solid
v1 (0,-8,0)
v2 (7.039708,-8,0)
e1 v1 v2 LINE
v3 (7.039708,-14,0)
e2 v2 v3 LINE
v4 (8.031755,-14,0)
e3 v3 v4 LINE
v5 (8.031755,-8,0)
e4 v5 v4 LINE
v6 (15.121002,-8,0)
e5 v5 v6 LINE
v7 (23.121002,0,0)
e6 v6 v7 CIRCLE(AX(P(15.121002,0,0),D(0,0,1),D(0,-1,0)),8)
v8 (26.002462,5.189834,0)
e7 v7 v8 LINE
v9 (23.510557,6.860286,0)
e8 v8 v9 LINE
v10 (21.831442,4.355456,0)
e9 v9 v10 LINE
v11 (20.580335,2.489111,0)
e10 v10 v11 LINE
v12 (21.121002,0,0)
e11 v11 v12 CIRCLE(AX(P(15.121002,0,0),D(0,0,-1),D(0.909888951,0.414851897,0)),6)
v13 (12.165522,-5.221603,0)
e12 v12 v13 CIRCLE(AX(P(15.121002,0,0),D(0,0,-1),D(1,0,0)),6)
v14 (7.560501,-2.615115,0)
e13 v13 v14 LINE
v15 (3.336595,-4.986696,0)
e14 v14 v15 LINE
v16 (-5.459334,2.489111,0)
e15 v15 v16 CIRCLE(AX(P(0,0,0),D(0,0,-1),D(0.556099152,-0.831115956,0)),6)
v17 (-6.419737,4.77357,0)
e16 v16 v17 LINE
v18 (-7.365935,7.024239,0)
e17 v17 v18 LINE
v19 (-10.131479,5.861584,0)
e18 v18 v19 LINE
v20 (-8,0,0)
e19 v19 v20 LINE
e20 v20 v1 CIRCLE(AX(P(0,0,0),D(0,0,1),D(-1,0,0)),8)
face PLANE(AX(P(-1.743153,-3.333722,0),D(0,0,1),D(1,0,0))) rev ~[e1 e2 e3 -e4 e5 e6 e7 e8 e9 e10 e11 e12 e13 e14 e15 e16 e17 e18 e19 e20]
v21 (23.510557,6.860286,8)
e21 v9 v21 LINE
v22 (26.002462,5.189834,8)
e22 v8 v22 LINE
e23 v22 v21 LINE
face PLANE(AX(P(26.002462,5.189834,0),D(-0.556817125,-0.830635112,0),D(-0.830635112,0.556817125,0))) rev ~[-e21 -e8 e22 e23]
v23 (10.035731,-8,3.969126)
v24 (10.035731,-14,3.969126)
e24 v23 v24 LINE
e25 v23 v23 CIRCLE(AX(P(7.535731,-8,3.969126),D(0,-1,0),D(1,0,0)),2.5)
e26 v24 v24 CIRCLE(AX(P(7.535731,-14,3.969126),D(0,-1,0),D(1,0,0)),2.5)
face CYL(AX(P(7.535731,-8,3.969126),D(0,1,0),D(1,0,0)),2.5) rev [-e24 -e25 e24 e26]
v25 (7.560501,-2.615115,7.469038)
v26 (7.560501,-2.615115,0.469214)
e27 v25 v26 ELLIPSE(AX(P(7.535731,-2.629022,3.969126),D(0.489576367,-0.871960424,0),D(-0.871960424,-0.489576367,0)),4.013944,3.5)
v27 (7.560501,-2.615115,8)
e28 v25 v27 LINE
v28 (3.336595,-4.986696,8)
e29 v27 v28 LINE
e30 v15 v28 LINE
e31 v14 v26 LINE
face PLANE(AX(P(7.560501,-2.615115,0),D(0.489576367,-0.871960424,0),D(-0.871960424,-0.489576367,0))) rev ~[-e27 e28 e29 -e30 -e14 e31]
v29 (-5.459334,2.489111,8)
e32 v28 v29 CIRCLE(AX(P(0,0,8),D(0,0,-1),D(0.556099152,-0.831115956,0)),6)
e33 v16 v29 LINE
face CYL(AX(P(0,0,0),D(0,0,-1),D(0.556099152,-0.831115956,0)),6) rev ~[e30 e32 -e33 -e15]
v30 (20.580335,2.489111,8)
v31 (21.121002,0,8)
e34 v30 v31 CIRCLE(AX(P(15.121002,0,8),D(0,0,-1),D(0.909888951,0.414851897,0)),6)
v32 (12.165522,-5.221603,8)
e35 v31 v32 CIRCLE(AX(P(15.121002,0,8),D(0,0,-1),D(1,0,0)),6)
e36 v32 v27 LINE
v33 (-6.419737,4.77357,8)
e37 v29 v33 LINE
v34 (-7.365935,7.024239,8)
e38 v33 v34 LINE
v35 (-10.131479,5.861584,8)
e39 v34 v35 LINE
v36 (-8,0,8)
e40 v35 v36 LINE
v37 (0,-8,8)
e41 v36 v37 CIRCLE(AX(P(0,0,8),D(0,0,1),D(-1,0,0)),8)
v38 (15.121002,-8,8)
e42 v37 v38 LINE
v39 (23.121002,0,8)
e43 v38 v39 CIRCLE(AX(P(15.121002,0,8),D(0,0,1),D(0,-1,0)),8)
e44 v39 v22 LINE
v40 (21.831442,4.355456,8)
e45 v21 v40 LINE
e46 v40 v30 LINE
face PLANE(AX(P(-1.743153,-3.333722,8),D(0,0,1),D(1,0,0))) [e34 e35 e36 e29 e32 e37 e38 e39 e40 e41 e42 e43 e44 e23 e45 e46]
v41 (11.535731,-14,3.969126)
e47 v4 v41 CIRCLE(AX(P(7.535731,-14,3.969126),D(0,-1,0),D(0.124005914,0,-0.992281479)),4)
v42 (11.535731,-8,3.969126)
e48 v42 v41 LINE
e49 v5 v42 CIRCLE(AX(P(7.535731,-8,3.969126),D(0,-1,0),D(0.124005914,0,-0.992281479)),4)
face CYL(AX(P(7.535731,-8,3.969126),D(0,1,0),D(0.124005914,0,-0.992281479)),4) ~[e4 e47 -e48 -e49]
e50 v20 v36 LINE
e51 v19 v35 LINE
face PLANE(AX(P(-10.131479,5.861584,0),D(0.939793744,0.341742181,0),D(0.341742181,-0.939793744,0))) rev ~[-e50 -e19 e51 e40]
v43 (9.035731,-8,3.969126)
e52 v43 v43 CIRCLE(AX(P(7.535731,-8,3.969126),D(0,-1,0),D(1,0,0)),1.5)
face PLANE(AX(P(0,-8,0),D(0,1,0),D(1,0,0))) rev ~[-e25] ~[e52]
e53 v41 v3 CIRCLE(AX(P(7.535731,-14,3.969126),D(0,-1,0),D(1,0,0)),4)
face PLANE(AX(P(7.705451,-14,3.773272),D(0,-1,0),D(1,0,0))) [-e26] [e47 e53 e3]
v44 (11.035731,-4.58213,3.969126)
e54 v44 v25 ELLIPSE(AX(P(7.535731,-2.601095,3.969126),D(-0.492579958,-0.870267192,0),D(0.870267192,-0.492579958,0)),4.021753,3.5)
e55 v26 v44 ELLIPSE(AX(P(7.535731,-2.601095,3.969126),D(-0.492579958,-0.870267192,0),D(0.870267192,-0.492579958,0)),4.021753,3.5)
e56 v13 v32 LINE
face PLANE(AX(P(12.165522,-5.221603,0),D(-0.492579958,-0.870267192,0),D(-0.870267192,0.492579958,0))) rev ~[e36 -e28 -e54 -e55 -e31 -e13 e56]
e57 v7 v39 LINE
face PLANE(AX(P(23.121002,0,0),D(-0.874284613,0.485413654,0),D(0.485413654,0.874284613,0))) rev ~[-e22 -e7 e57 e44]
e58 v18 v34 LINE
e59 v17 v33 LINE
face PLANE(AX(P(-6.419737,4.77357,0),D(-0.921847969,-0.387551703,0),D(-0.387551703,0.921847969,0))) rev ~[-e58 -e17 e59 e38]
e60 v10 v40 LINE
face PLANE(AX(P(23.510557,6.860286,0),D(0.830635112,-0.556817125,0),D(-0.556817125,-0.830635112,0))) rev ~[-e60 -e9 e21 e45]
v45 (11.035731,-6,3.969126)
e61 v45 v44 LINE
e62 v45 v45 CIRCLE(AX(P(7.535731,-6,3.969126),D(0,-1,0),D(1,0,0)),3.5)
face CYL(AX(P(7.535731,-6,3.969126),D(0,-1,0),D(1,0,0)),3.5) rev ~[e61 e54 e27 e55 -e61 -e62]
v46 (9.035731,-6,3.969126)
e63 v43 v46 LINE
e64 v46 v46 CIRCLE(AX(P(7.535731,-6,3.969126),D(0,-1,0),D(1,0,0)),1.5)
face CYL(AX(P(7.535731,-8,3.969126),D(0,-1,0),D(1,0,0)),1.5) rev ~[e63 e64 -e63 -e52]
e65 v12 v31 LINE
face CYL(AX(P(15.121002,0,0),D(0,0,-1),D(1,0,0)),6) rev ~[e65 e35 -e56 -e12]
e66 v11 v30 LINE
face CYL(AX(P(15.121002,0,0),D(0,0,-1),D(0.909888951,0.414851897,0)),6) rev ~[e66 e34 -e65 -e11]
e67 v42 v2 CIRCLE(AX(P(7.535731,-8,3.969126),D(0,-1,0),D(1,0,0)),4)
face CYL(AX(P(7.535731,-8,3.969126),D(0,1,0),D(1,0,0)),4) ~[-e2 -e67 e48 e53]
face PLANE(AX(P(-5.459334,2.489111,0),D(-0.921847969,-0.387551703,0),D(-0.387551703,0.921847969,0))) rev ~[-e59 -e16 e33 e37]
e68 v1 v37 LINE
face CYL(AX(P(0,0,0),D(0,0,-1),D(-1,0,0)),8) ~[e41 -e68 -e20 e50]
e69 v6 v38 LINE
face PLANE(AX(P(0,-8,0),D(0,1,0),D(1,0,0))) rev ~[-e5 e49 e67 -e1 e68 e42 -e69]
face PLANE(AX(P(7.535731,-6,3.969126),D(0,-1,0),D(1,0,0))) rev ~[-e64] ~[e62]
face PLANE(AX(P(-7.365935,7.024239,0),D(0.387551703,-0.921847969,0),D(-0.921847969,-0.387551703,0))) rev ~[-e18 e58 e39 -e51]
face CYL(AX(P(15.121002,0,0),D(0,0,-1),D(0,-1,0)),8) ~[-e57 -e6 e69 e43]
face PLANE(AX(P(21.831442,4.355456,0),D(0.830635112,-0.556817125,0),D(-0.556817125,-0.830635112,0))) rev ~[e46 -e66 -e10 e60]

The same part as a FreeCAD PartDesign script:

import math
import FreeCAD as App
import Part
import Sketcher
from FreeCAD import Vector
Q = App.Units.Quantity

doc = App.newDocument("Part")
params = doc.addObject("Spreadsheet::Sheet", "Params")
for row, (alias, value) in enumerate([
    ("sketch1_radius", "8 mm"),
    ("sketch1_radius2", "6 mm"),
    ("sketch1_length", "3 mm"),
    ("pad1_length", "8 mm"),
    ("sketch2_diameter", "3 mm"),
    ("pocket1_length", "25 mm"),
    ("sketch3_diameter", "5 mm"),
    ("sketch3_radius", "4 mm"),
    ("pad2_length", "6 mm"),
    ("sketch4_diameter", "7 mm"),
    ("pocket2_length", "23 mm"),
], start=1):
    params.set(f"A{row}", alias)
    params.set(f"B{row}", "=" + value)
    params.setAlias(f"B{row}", alias)

body = doc.addObject("PartDesign::Body", "Body")

sketch1 = doc.addObject("Sketcher::SketchObject", "Sketch")
body.addObject(sketch1)
sketch1.AttachmentSupport = (doc.XY_Plane, [""])
sketch1.MapMode = "FlatFace"
sketch1.addGeometry([
    Part.ArcOfCircle(Part.Circle(Vector(0, 0, 0), Vector(0, 0, 1), 8), math.radians(180), math.radians(270)),
    Part.LineSegment(Vector(0, -8, 0), Vector(15.1, -8, 0)),
    Part.ArcOfCircle(Part.Circle(Vector(15.1, 0, 0), Vector(0, 0, 1), 8), math.radians(-90), math.radians(0)),
    Part.LineSegment(Vector(23.1, 0, 0), Vector(26, 5.2, 0)),
    Part.LineSegment(Vector(26, 5.2, 0), Vector(23.5, 6.9, 0)),
    Part.LineSegment(Vector(23.5, 6.9, 0), Vector(21.8, 4.4, 0)),
    Part.LineSegment(Vector(21.8, 4.4, 0), Vector(20.6, 2.5, 0)),
    Part.ArcOfCircle(Part.Circle(Vector(15.1, 0, 0), Vector(0, 0, 1), 6), math.radians(0), math.radians(25)),
    Part.ArcOfCircle(Part.Circle(Vector(15.1, 0, 0), Vector(0, 0, 1), 6), math.radians(-120), math.radians(0)),
    Part.LineSegment(Vector(12.2, -5.2, 0), Vector(7.6, -2.6, 0)),
    Part.LineSegment(Vector(7.6, -2.6, 0), Vector(3.3, -5, 0)),
    Part.ArcOfCircle(Part.Circle(Vector(0, 0, 0), Vector(0, 0, 1), 6), math.radians(155), math.radians(304)),
    Part.LineSegment(Vector(-5.5, 2.5, 0), Vector(-6.4, 4.8, 0)),
    Part.LineSegment(Vector(-6.4, 4.8, 0), Vector(-7.4, 7, 0)),
    Part.LineSegment(Vector(-7.4, 7, 0), Vector(-10.1, 5.9, 0)),
    Part.LineSegment(Vector(-10.1, 5.9, 0), Vector(-8, 0, 0)),
], False)
sketch1.addConstraint([
    Sketcher.Constraint("Tangent", 0, 2, 1, 1),
    Sketcher.Constraint("Tangent", 1, 2, 2, 1),
    Sketcher.Constraint("Coincident", 2, 2, 3, 1),
    Sketcher.Constraint("Coincident", 3, 2, 4, 1),
    Sketcher.Constraint("Coincident", 4, 2, 5, 1),
    Sketcher.Constraint("Coincident", 5, 2, 6, 1),
    Sketcher.Constraint("Coincident", 6, 2, 7, 2),
    Sketcher.Constraint("Tangent", 7, 1, 8, 2),
    Sketcher.Constraint("Tangent", 8, 1, 9, 1),
    Sketcher.Constraint("Coincident", 9, 2, 10, 1),
    Sketcher.Constraint("Coincident", 10, 2, 11, 2),
    Sketcher.Constraint("Coincident", 11, 1, 12, 1),
    Sketcher.Constraint("Coincident", 12, 2, 13, 1),
    Sketcher.Constraint("Coincident", 13, 2, 14, 1),
    Sketcher.Constraint("Coincident", 14, 2, 15, 1),
    Sketcher.Constraint("Coincident", 15, 2, 0, 1),
    Sketcher.Constraint("Horizontal", 1),
    Sketcher.Constraint("Coincident", 0, 3, -1, 1),
    Sketcher.Constraint("Coincident", 11, 3, -1, 1),
    Sketcher.Constraint("Coincident", 7, 3, 2, 3),
    Sketcher.Constraint("Equal", 0, 2),
    Sketcher.Constraint("Equal", 7, 8),
    Sketcher.Constraint("Equal", 8, 11),
    Sketcher.Constraint("PointOnObject", 2, 2, -1),
    Sketcher.Constraint("PointOnObject", 7, 1, -1),
    Sketcher.Constraint("PointOnObject", 15, 2, -1),
    Sketcher.Constraint("Perpendicular", 4, 5),
    Sketcher.Constraint("Parallel", 5, 6),
    Sketcher.Constraint("Parallel", 12, 13),
    Sketcher.Constraint("Perpendicular", 13, 14),
    Sketcher.Constraint("Horizontal", 6, 2, 11, 1),
    Sketcher.Constraint("Equal", 4, 14),
    Sketcher.Constraint("Radius", 0, Q("8 mm")),
    Sketcher.Constraint("Radius", 7, Q("6 mm")),
    Sketcher.Constraint("Distance", 4, Q("3 mm")),
    Sketcher.Constraint("DistanceX", 1, 1, 1, 2, Q("15.121002 mm")),
    Sketcher.Constraint("DistanceX", -1, 1, 9, 2, Q("7.560501 mm")),
    Sketcher.Constraint("DistanceX", 13, 2, 11, 1, Q("1.906601 mm")),
    Sketcher.Constraint("Distance", 5, Q("3.015559 mm")),
    Sketcher.Constraint("Distance", 6, Q("2.246889 mm")),
    Sketcher.Constraint("Distance", 10, Q("4.844149 mm")),
    Sketcher.Constraint("Distance", 12, Q("2.47813 mm")),
    Sketcher.Constraint("DistanceX", -1, 1, 5, 2, Q("21.831442 mm")),
    Sketcher.Constraint("DistanceY", -1, 1, 6, 2, Q("2.489111 mm")),
    Sketcher.Constraint("DistanceY", -1, 1, 12, 2, Q("4.77357 mm")),
    Sketcher.Constraint("DistanceX", 8, 1, 1, 2, Q("2.95548 mm")),
])
sketch1.setExpression("Constraints[32]", "Params.sketch1_radius")
sketch1.setExpression("Constraints[33]", "Params.sketch1_radius2")
sketch1.setExpression("Constraints[34]", "Params.sketch1_length")
pad1 = doc.addObject("PartDesign::Pad", "Pad")
body.addObject(pad1)
pad1.Profile = sketch1
pad1.setExpression("Length", "Params.pad1_length")

sketch2 = doc.addObject("Sketcher::SketchObject", "Sketch001")
body.addObject(sketch2)
sketch2.AttachmentSupport = (doc.XZ_Plane, [""])
sketch2.MapMode = "FlatFace"
sketch2.AttachmentOffset = App.Placement(Vector(0, 0, 8), App.Rotation())
sketch2.addGeometry(Part.Circle(Vector(7.5, 4, 0), Vector(0, 0, 1), 1.5), False)
sketch2.addConstraint([
    Sketcher.Constraint("Diameter", 0, Q("3 mm")),
    Sketcher.Constraint("DistanceX", -1, 1, 0, 3, Q("7.535731 mm")),
    Sketcher.Constraint("DistanceY", -1, 1, 0, 3, Q("3.969126 mm")),
])
sketch2.setExpression("Constraints[0]", "Params.sketch2_diameter")
pocket1 = doc.addObject("PartDesign::Pocket", "Pocket")
body.addObject(pocket1)
pocket1.Profile = sketch2
pocket1.setExpression("Length", "Params.pocket1_length")

sketch3 = doc.addObject("Sketcher::SketchObject", "Sketch002")
body.addObject(sketch3)
sketch3.AttachmentSupport = (doc.XZ_Plane, [""])
sketch3.MapMode = "FlatFace"
sketch3.AttachmentOffset = App.Placement(Vector(0, 0, 8), App.Rotation())
sketch3.addGeometry([
    Part.ArcOfCircle(Part.Circle(Vector(7.5, 4, 0), Vector(0, 0, 1), 4), math.radians(-83), math.radians(0)),
    Part.ArcOfCircle(Part.Circle(Vector(7.5, 4, 0), Vector(0, 0, 1), 4), math.radians(0), math.radians(263)),
    Part.LineSegment(Vector(7, 0, 0), Vector(8, 0, 0)),
    Part.Circle(Vector(7.5, 4, 0), Vector(0, 0, 1), 2.5),
], False)
sketch3.addConstraint([
    Sketcher.Constraint("Tangent", 0, 2, 1, 1),
    Sketcher.Constraint("Coincident", 1, 2, 2, 1),
    Sketcher.Constraint("Coincident", 2, 2, 0, 1),
    Sketcher.Constraint("Horizontal", 2),
    Sketcher.Constraint("Coincident", 3, 3, 0, 3),
    Sketcher.Constraint("Equal", 0, 1),
    Sketcher.Constraint("PointOnObject", 1, 2, -1),
    Sketcher.Constraint("Horizontal", 3, 3, 0, 2),
    Sketcher.Constraint("Diameter", 3, Q("5 mm")),
    Sketcher.Constraint("Radius", 0, Q("4 mm")),
    Sketcher.Constraint("DistanceX", 2, 1, 2, 2, Q("0.992047 mm")),
    Sketcher.Constraint("DistanceX", -1, 1, 0, 3, Q("7.535731 mm")),
])
sketch3.setExpression("Constraints[8]", "Params.sketch3_diameter")
sketch3.setExpression("Constraints[9]", "Params.sketch3_radius")
pad2 = doc.addObject("PartDesign::Pad", "Pad001")
body.addObject(pad2)
pad2.Profile = sketch3
pad2.setExpression("Length", "Params.pad2_length")

sketch4 = doc.addObject("Sketcher::SketchObject", "Sketch003")
body.addObject(sketch4)
sketch4.AttachmentSupport = (doc.XZ_Plane, [""])
sketch4.MapMode = "FlatFace"
sketch4.AttachmentOffset = App.Placement(Vector(0, 0, 6), App.Rotation())
sketch4.addGeometry(Part.Circle(Vector(7.5, 4, 0), Vector(0, 0, 1), 3.5), False)
sketch4.addConstraint([
    Sketcher.Constraint("Diameter", 0, Q("7 mm")),
    Sketcher.Constraint("DistanceX", -1, 1, 0, 3, Q("7.535731 mm")),
    Sketcher.Constraint("DistanceY", -1, 1, 0, 3, Q("3.969126 mm")),
])
sketch4.setExpression("Constraints[0]", "Params.sketch4_diameter")
pocket2 = doc.addObject("PartDesign::Pocket", "Pocket001")
body.addObject(pocket2)
pocket2.Profile = sketch4
pocket2.setExpression("Length", "Params.pocket2_length")

doc.recompute()
